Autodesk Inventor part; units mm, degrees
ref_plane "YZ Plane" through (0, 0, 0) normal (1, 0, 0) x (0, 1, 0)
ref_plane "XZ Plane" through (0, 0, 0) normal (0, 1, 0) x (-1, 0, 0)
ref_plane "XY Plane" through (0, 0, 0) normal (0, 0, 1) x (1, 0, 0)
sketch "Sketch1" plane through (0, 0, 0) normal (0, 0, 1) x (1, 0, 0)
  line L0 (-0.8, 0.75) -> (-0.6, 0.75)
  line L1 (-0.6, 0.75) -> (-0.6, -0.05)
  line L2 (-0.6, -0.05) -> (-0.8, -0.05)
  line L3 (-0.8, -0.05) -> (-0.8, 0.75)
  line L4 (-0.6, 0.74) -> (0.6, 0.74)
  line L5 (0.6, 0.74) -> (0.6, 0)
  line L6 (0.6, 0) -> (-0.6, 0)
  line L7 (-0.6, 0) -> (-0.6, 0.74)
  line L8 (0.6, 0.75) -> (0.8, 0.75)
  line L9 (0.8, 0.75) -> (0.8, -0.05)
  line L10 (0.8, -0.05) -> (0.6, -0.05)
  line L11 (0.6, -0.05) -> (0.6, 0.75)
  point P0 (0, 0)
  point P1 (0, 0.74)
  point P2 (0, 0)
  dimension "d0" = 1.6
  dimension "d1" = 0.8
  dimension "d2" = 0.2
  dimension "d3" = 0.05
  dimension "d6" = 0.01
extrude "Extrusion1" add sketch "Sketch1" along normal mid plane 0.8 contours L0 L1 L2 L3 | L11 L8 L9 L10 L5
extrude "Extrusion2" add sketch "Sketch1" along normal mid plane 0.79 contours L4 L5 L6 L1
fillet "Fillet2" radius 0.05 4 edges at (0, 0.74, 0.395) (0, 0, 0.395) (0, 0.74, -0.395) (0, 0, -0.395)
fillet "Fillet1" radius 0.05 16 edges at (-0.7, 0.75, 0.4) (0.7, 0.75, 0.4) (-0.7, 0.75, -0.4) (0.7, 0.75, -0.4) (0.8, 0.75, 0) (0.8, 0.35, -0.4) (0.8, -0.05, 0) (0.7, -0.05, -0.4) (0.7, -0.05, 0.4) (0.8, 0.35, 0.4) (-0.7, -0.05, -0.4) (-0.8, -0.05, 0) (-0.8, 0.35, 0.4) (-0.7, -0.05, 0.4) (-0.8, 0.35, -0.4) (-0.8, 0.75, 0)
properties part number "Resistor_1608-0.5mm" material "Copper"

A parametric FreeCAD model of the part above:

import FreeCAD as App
import Part
import Sketcher


def edges_at(feature, points):
    """Names of the edges that pass closest to the given points."""
    edges = feature.Shape.Edges
    near = lambda p: min(range(len(edges)), key=lambda i: edges[i].distToShape(Part.Vertex(*p))[0])
    return sorted({f"Edge{near(p) + 1}" for p in points})


def add_polygon(sketch, points):
    """Adds a closed chain of lines whose ends are joined by coincident constraints."""
    first, n = sketch.GeometryCount, len(points)
    for a, b in zip(points, points[1:] + points[:1]):
        sketch.addGeometry(Part.LineSegment(App.Vector(*a, 0), App.Vector(*b, 0)), False)
    for i in range(n):
        sketch.addConstraint(Sketcher.Constraint("Coincident", first + i, 2, first + (i + 1) % n, 1))

doc = App.newDocument("Part")
body = doc.addObject("PartDesign::Body", "Body")
body.AllowCompound = True

sketch1 = body.newObject("Sketcher::SketchObject", "Sketch")
sketch1.AttachmentSupport = (doc.getObject("XY_Plane"), [""])
sketch1.MapMode = "FlatFace"
add_polygon(sketch1, [(-0.6, 0.75), (-0.8, 0.75), (-0.8, -0.05), (-0.6, -0.05)])
add_polygon(sketch1, [(0.6, 0.75), (0.6, -0.05), (0.8, -0.05), (0.8, 0.75)])
sketch1.addConstraint([
    Sketcher.Constraint("Horizontal", 0),
    Sketcher.Constraint("Vertical", 1),
    Sketcher.Constraint("Horizontal", 2),
    Sketcher.Constraint("Vertical", 3),
    Sketcher.Constraint("Vertical", 4),
    Sketcher.Constraint("Horizontal", 5),
    Sketcher.Constraint("Vertical", 6),
    Sketcher.Constraint("Horizontal", 7),
    Sketcher.Constraint("Symmetric", 2, 2, 4, 2, -2),
    Sketcher.Constraint("Symmetric", 0, 2, 6, 2, -2),
    Sketcher.Constraint("DistanceX", 0, 2, 0, 1, 0.2),
    Sketcher.Constraint("DistanceY", 1, 2, 1, 1, 0.8),
    Sketcher.Constraint("DistanceX", 0, 2, -1, 1, 0.8),
    Sketcher.Constraint("DistanceY", 1, 2, -1, 1, 0.05),
])
pad1 = body.newObject("PartDesign::Pad", "Pad")
pad1.Profile = sketch1
pad1.Length = 0.8
pad1.Midplane = True

sketch2 = body.newObject("Sketcher::SketchObject", "Sketch001")
sketch2.AttachmentSupport = (doc.getObject("XY_Plane"), [""])
sketch2.MapMode = "FlatFace"
add_polygon(sketch2, [(0.6, 0.7), (-0.6, 0.7), (-0.6, 0), (0.6, 0)])
sketch2.addConstraint([
    Sketcher.Constraint("Horizontal", 0),
    Sketcher.Constraint("Vertical", 1),
    Sketcher.Constraint("Horizontal", 2),
    Sketcher.Constraint("Vertical", 3),
    Sketcher.Constraint("Symmetric", 1, 2, 2, 2, -1, 1),
    Sketcher.Constraint("DistanceX", 0, 2, 0, 1, 1.2),
    Sketcher.Constraint("DistanceY", 1, 2, 1, 1, 0.74),
])
pad2 = body.newObject("PartDesign::Pad", "Pad001")
pad2.Profile = sketch2
pad2.Length = 0.79
pad2.Midplane = True
doc.recompute()

fillet = body.newObject("PartDesign::Fillet", "Fillet")
fillet.Base = (pad2, edges_at(pad2, [
    (0, 0.74, 0.395),
    (0, 0, 0.395),
    (0, 0.74, -0.395),
    (0, 0, -0.395),
]))
fillet.Radius = 0.05
doc.recompute()

fillet2 = body.newObject("PartDesign::Fillet", "Fillet001")
fillet2.Base = (fillet, edges_at(fillet, [
    (-0.7, 0.75, 0.4),
    (0.7, 0.75, 0.4),
    (-0.7, 0.75, -0.4),
    (0.7, 0.75, -0.4),
    (0.8, 0.75, 0),
    (0.8, 0.35, -0.4),
    (0.8, -0.05, 0),
    (0.7, -0.05, -0.4),
    (0.7, -0.05, 0.4),
    (0.8, 0.35, 0.4),
    (-0.7, -0.05, -0.4),
    (-0.8, -0.05, 0),
    (-0.8, 0.35, 0.4),
    (-0.7, -0.05, 0.4),
    (-0.8, 0.35, -0.4),
    (-0.8, 0.75, 0),
]))
fillet2.Radius = 0.05

doc.recompute()
